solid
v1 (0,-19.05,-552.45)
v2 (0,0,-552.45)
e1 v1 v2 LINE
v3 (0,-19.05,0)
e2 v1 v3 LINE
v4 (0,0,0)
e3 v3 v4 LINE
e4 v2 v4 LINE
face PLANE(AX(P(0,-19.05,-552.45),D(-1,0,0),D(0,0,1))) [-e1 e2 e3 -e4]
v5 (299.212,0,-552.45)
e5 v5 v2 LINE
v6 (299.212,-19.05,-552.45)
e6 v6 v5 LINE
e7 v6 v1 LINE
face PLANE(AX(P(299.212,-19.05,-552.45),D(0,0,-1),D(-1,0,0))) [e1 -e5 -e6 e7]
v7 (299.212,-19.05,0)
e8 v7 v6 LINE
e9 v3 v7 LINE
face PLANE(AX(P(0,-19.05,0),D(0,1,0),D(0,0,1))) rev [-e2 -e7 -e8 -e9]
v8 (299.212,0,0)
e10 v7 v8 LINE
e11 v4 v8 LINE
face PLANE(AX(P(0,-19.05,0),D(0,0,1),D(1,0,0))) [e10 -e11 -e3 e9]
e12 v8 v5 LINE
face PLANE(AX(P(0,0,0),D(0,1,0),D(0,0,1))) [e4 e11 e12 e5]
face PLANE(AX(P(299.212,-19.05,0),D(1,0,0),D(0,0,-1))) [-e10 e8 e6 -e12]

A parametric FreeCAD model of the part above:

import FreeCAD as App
import Part
import Sketcher

V = App.Vector
Q = App.Units.Quantity


def add_polygon(sketch, points):
    """Adds a closed chain of lines whose ends are joined by coincident constraints."""
    first, n = sketch.GeometryCount, len(points)
    for a, b in zip(points, points[1:] + points[:1]):
        sketch.addGeometry(Part.LineSegment(App.Vector(*a, 0), App.Vector(*b, 0)), False)
    for i in range(n):
        sketch.addConstraint(Sketcher.Constraint("Coincident", first + i, 2, first + (i + 1) % n, 1))

doc = App.newDocument("Part")
body = doc.addObject("PartDesign::Body", "Body")

sketch1 = doc.addObject("Sketcher::SketchObject", "Sketch")
body.addObject(sketch1)
sketch1.AttachmentSupport = (doc.XZ_Plane, [""])
sketch1.MapMode = "FlatFace"
add_polygon(sketch1, [(0, -552), (0, 0), (299, 0), (299, -552)])
sketch1.addConstraint([
    Sketcher.Constraint("Vertical", 0),
    Sketcher.Constraint("Horizontal", 1),
    Sketcher.Constraint("Vertical", 2),
    Sketcher.Constraint("Horizontal", 3),
    Sketcher.Constraint("Coincident", 0, 2, -1, 1),
    Sketcher.Constraint("DistanceX", 1, 1, 1, 2, Q("11.78 in")),
    Sketcher.Constraint("DistanceY", 0, 1, 0, 2, Q("21.75 in")),
])
pad1 = doc.addObject("PartDesign::Pad", "Pad")
body.addObject(pad1)
pad1.Profile = sketch1
pad1.Length = Q("0.75 in")

doc.recompute()
